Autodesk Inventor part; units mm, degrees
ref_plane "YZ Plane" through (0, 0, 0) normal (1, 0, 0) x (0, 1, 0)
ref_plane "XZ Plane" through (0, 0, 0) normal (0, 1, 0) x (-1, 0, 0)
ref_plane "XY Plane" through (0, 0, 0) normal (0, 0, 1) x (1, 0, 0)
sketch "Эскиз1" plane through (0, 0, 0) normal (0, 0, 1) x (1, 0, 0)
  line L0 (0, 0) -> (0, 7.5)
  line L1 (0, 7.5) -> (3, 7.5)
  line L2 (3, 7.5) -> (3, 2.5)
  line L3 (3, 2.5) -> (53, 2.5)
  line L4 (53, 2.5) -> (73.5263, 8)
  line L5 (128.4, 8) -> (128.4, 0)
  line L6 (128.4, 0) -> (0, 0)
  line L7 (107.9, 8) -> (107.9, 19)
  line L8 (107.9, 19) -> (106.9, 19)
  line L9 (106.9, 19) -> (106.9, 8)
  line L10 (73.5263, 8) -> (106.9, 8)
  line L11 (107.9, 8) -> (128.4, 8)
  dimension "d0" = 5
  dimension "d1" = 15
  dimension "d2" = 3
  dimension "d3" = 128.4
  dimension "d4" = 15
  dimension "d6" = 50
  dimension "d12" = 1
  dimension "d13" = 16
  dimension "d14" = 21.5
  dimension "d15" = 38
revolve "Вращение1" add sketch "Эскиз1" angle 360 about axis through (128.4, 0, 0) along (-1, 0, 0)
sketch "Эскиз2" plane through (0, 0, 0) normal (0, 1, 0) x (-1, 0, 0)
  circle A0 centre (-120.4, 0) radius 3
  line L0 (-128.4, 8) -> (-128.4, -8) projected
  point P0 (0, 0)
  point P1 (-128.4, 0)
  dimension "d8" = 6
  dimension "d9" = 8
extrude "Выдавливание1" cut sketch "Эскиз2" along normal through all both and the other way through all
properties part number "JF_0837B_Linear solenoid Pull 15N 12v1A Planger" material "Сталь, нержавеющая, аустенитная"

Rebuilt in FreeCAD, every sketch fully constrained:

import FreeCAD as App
import Part
import Sketcher
Q = App.Units.Quantity


def add_polygon(sketch, points):
    """Adds a closed chain of lines whose ends are joined by coincident constraints."""
    first, n = sketch.GeometryCount, len(points)
    for a, b in zip(points, points[1:] + points[:1]):
        sketch.addGeometry(Part.LineSegment(App.Vector(*a, 0), App.Vector(*b, 0)), False)
    for i in range(n):
        sketch.addConstraint(Sketcher.Constraint("Coincident", first + i, 2, first + (i + 1) % n, 1))

doc = App.newDocument("Part")
body = doc.addObject("PartDesign::Body", "Body")

# Sketch on XY plane
sketch1 = doc.addObject("Sketcher::SketchObject", "Sketch")
body.addObject(sketch1)
sketch1.AttachmentSupport = (doc.XY_Plane, [""])
sketch1.MapMode = "FlatFace"
add_polygon(sketch1, [(0, 7.5), (0, 0), (128.4, 0), (128.4, 8), (107.9, 8), (107.9, 19), (106.9, 19), (106.9, 8), (73.5, 8), (53, 2.5), (3, 2.5), (3, 7.5)])  # lines 0-11
sketch1.addConstraint([
    Sketcher.Constraint("Vertical", 0),
    Sketcher.Constraint("Horizontal", 1),
    Sketcher.Constraint("Vertical", 2),
    Sketcher.Constraint("Horizontal", 3),
    Sketcher.Constraint("Vertical", 4),
    Sketcher.Constraint("Horizontal", 5),
    Sketcher.Constraint("Vertical", 6),
    Sketcher.Constraint("Horizontal", 7),
    Sketcher.Constraint("Horizontal", 9),
    Sketcher.Constraint("Vertical", 10),
    Sketcher.Constraint("Horizontal", 11),
    Sketcher.Constraint("Coincident", 0, 2, -1, 1),
    Sketcher.Constraint("Horizontal", 3, 2, 6, 2),
    Sketcher.Constraint("DistanceX", 5, 2, 5, 1, Q("1 mm")),
    Sketcher.Constraint("DistanceX", 9, 2, 9, 1, Q("50 mm")),
    Sketcher.Constraint("DistanceX", 11, 2, 11, 1, Q("3 mm")),
    Sketcher.Constraint("DistanceY", 10, 1, 10, 2, Q("5 mm")),
    Sketcher.Constraint("DistanceX", 1, 1, 1, 2, Q("128.4 mm")),
    Sketcher.Constraint("DistanceX", 5, 2, 2, 2, Q("21.5 mm")),
    Sketcher.Constraint("DistanceY", 2, 1, 2, 2, Q("8 mm")),
    Sketcher.Constraint("DistanceY", 4, 1, 4, 2, Q("11 mm")),
    Sketcher.Constraint("Angle", 8, Q("-165 deg")),
    Sketcher.Constraint("DistanceY", 0, 2, 0, 1, Q("7.5 mm")),
])
revolution = doc.addObject("PartDesign::Revolution", "Revolution")
body.addObject(revolution)
revolution.Profile = sketch1
revolution.ReferenceAxis = (sketch1, ["H_Axis"])
revolution.Angle = 360

# Sketch on XZ plane
sketch2 = doc.addObject("Sketcher::SketchObject", "Sketch001")
body.addObject(sketch2)
sketch2.AttachmentSupport = (doc.XZ_Plane, [""])
sketch2.MapMode = "FlatFace"
sketch2.addGeometry(Part.Circle(App.Vector(120.4, 0, 0), App.Vector(0, 0, 1), 3), False)
sketch2.addConstraint([
    Sketcher.Constraint("PointOnObject", 0, 3, -1),
    Sketcher.Constraint("Diameter", 0, Q("6 mm")),
    Sketcher.Constraint("DistanceX", -1, 1, 0, 3, Q("120.4 mm")),
])
pocket1 = doc.addObject("PartDesign::Pocket", "Pocket")
body.addObject(pocket1)
pocket1.Profile = sketch2
pocket1.Type = "ThroughAll"
pocket1.Midplane = True

doc.recompute()
